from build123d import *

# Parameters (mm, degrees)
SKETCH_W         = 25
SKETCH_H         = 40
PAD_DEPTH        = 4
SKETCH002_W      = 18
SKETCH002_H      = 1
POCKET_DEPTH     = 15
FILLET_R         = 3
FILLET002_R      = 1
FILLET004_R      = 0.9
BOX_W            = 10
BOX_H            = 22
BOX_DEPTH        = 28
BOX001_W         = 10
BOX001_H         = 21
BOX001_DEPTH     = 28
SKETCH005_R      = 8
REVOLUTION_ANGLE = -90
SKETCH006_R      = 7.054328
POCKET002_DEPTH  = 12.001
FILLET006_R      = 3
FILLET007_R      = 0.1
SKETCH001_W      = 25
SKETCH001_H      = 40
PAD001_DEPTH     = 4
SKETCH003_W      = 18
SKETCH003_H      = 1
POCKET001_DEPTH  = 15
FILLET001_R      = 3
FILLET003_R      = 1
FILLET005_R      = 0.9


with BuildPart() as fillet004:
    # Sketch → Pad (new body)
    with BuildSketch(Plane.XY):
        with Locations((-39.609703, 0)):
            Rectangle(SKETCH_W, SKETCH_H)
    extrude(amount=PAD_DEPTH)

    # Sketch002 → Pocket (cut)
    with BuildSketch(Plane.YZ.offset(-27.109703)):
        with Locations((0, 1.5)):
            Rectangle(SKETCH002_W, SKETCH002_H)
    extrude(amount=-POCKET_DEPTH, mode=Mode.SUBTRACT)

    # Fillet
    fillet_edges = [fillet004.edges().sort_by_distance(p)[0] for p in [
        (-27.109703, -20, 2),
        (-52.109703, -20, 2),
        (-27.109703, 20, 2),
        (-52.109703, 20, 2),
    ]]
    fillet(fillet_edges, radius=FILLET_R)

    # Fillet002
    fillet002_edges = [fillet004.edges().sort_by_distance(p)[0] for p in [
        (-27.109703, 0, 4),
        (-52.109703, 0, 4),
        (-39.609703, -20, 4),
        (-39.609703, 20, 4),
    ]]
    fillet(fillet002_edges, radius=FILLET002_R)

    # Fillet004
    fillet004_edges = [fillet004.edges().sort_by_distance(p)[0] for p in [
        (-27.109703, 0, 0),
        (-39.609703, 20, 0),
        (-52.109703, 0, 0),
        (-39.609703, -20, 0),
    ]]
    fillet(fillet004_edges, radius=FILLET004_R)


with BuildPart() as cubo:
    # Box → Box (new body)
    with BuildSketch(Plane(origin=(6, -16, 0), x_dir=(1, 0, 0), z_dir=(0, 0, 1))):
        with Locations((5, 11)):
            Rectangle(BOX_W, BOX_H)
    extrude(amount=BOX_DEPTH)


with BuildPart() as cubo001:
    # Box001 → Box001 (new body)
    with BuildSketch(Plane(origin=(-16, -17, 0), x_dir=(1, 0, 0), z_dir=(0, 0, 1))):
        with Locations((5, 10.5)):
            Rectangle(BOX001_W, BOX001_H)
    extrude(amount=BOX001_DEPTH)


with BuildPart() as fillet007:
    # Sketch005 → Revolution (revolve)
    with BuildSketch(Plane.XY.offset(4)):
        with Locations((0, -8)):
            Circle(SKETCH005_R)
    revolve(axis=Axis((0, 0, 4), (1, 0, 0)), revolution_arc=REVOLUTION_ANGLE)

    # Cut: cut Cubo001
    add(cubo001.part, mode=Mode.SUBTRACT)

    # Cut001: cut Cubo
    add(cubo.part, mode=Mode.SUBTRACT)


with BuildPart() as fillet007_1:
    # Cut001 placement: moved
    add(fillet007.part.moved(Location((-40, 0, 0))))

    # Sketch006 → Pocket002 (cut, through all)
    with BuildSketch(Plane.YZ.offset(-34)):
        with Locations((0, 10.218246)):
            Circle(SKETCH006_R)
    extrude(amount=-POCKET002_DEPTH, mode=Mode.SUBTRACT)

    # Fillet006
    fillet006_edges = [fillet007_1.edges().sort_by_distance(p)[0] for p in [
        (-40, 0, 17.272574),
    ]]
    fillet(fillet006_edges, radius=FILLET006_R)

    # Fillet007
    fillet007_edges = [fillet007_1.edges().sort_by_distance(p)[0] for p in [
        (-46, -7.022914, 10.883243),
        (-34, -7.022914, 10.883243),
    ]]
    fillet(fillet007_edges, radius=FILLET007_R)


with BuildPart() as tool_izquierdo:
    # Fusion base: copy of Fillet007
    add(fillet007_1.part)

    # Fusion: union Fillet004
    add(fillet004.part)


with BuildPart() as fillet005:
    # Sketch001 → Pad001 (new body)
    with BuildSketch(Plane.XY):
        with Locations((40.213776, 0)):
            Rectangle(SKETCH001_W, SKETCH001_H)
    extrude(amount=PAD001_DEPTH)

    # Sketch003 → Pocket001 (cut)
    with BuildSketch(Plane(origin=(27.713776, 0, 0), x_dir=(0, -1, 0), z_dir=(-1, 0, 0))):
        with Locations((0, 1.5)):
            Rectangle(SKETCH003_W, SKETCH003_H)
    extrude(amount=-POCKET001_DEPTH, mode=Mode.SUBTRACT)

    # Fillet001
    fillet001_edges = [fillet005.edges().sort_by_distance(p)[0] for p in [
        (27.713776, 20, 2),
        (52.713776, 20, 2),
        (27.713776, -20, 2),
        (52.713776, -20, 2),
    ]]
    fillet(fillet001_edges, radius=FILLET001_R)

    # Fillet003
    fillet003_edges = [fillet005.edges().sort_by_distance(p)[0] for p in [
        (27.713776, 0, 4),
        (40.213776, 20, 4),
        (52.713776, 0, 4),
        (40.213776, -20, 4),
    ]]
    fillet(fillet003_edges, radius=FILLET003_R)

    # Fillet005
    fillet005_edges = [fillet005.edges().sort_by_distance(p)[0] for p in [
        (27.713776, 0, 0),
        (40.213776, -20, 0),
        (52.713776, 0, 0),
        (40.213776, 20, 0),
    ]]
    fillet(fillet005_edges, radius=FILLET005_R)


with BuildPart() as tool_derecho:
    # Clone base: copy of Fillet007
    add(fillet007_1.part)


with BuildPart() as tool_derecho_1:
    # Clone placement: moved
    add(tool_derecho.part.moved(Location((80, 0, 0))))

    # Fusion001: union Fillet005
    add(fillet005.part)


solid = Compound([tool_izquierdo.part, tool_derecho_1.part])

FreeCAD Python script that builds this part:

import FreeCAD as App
import Part
import Sketcher

V = App.Vector
Q = App.Units.Quantity


def edges_at(feature, points):
    """Names of the edges that pass closest to the given points."""
    edges = feature.Shape.Edges
    near = lambda p: min(range(len(edges)), key=lambda i: edges[i].distToShape(Part.Vertex(*p))[0])
    return sorted({f"Edge{near(p) + 1}" for p in points})

doc = App.newDocument("Part")
body = doc.addObject("PartDesign::Body", "Body")

# Sketch on XY plane
sketch1 = body.newObject("Sketcher::SketchObject", "Sketch")
sketch1.AttachmentSupport = (doc.getObject("XY_Plane"), [""])
sketch1.MapMode = "FlatFace"
sketch1.addGeometry([
    Part.LineSegment(V(-52, 20, 0), V(-52, -20, 0)),
    Part.LineSegment(V(-52, -20, 0), V(-27, -20, 0)),
    Part.LineSegment(V(-27, -20, 0), V(-27, 20, 0)),
    Part.LineSegment(V(-27, 20, 0), V(-52, 20, 0)),
], False)
sketch1.addConstraint([
    Sketcher.Constraint("Coincident", 0, 2, 1, 1),
    Sketcher.Constraint("Coincident", 1, 2, 2, 1),
    Sketcher.Constraint("Coincident", 2, 2, 3, 1),
    Sketcher.Constraint("Coincident", 3, 2, 0, 1),
    Sketcher.Constraint("Vertical", 0),
    Sketcher.Constraint("Horizontal", 1),
    Sketcher.Constraint("Vertical", 2),
    Sketcher.Constraint("Horizontal", 3),
    Sketcher.Constraint("DistanceX", 1, 1, 1, 2, Q("25 mm")),
    Sketcher.Constraint("DistanceY", 0, 2, 0, 1, Q("40 mm")),
    Sketcher.Constraint("DistanceY", 0, 2, -1, 1, Q("20 mm")),
    Sketcher.Constraint("DistanceX", 0, 2, -1, 1, Q("52.109703 mm")),
])
pad1 = body.newObject("PartDesign::Pad", "Pad")
pad1.Profile = sketch1
pad1.Length = 4

# Sketch on YZ plane
sketch2 = body.newObject("Sketcher::SketchObject", "Sketch001")
sketch2.AttachmentSupport = (doc.getObject("YZ_Plane"), [""])
sketch2.MapMode = "FlatFace"
sketch2.AttachmentOffset = App.Placement(V(0, 0, -27.109703), App.Rotation())
sketch2.addGeometry([
    Part.LineSegment(V(-9, 2, 0), V(-9, 1, 0)),
    Part.LineSegment(V(-9, 1, 0), V(9, 1, 0)),
    Part.LineSegment(V(9, 1, 0), V(9, 2, 0)),
    Part.LineSegment(V(9, 2, 0), V(-9, 2, 0)),
], False)
sketch2.addConstraint([
    Sketcher.Constraint("Coincident", 0, 2, 1, 1),
    Sketcher.Constraint("Coincident", 1, 2, 2, 1),
    Sketcher.Constraint("Coincident", 2, 2, 3, 1),
    Sketcher.Constraint("Coincident", 3, 2, 0, 1),
    Sketcher.Constraint("Vertical", 0),
    Sketcher.Constraint("Horizontal", 1),
    Sketcher.Constraint("Vertical", 2),
    Sketcher.Constraint("Horizontal", 3),
    Sketcher.Constraint("DistanceX", 1, 1, 1, 2, Q("18 mm")),
    Sketcher.Constraint("DistanceY", 0, 2, 0, 1, Q("1 mm")),
    Sketcher.Constraint("DistanceX", 0, 2, -1, 1, Q("9 mm")),
    Sketcher.Constraint("DistanceY", -1, 1, 0, 2, Q("1 mm")),
])
pocket1 = body.newObject("PartDesign::Pocket", "Pocket")
pocket1.Profile = sketch2
pocket1.Length = 15
doc.recompute()

fillet = body.newObject("PartDesign::Fillet", "Fillet")
fillet.Base = (pocket1, edges_at(pocket1, [
    (-27.11, -20, 2),
    (-52.11, -20, 2),
    (-27.11, 20, 2),
    (-52.11, 20, 2),
]))
fillet.Radius = 3
doc.recompute()

fillet2 = body.newObject("PartDesign::Fillet", "Fillet001")
fillet2.Base = (fillet, edges_at(fillet, [
    (-27.11, 0, 4),
    (-52.11, 0, 4),
    (-39.61, -20, 4),
    (-39.61, 20, 4),
]))
fillet2.Radius = 1
doc.recompute()

fillet3 = body.newObject("PartDesign::Fillet", "Fillet002")
fillet3.Base = (fillet2, edges_at(fillet2, [
    (-27.11, 0, 0),
    (-39.61, 20, 0),
    (-52.11, 0, 0),
    (-39.61, -20, 0),
]))
fillet3.Radius = 0.9
body2 = doc.addObject("PartDesign::Body", "Body001")

# Sketch on XY plane
sketch3 = body2.newObject("Sketcher::SketchObject", "Sketch002")
sketch3.AttachmentSupport = (doc.getObject("XY_Plane001"), [""])
sketch3.MapMode = "FlatFace"
sketch3.addGeometry([
    Part.LineSegment(V(6, 6, 0), V(6, -16, 0)),
    Part.LineSegment(V(6, -16, 0), V(16, -16, 0)),
    Part.LineSegment(V(16, -16, 0), V(16, 6, 0)),
    Part.LineSegment(V(16, 6, 0), V(6, 6, 0)),
], False)
sketch3.addConstraint([
    Sketcher.Constraint("Coincident", 0, 2, 1, 1),
    Sketcher.Constraint("Coincident", 1, 2, 2, 1),
    Sketcher.Constraint("Coincident", 2, 2, 3, 1),
    Sketcher.Constraint("Coincident", 3, 2, 0, 1),
    Sketcher.Constraint("Vertical", 0),
    Sketcher.Constraint("Horizontal", 1),
    Sketcher.Constraint("Vertical", 2),
    Sketcher.Constraint("Horizontal", 3),
    Sketcher.Constraint("DistanceX", 1, 1, 1, 2, Q("10 mm")),
    Sketcher.Constraint("DistanceY", 0, 2, 0, 1, Q("22 mm")),
    Sketcher.Constraint("DistanceX", -1, 1, 0, 2, Q("6 mm")),
    Sketcher.Constraint("DistanceY", 0, 2, -1, 1, Q("16 mm")),
])
pad2 = body2.newObject("PartDesign::Pad", "Pad001")
pad2.Profile = sketch3
pad2.Length = 28
body3 = doc.addObject("PartDesign::Body", "Body002")

# Sketch on XY plane
sketch4 = body3.newObject("Sketcher::SketchObject", "Sketch003")
sketch4.AttachmentSupport = (doc.getObject("XY_Plane002"), [""])
sketch4.MapMode = "FlatFace"
sketch4.addGeometry([
    Part.LineSegment(V(-16, 4, 0), V(-16, -17, 0)),
    Part.LineSegment(V(-16, -17, 0), V(-6, -17, 0)),
    Part.LineSegment(V(-6, -17, 0), V(-6, 4, 0)),
    Part.LineSegment(V(-6, 4, 0), V(-16, 4, 0)),
], False)
sketch4.addConstraint([
    Sketcher.Constraint("Coincident", 0, 2, 1, 1),
    Sketcher.Constraint("Coincident", 1, 2, 2, 1),
    Sketcher.Constraint("Coincident", 2, 2, 3, 1),
    Sketcher.Constraint("Coincident", 3, 2, 0, 1),
    Sketcher.Constraint("Vertical", 0),
    Sketcher.Constraint("Horizontal", 1),
    Sketcher.Constraint("Vertical", 2),
    Sketcher.Constraint("Horizontal", 3),
    Sketcher.Constraint("DistanceX", 1, 1, 1, 2, Q("10 mm")),
    Sketcher.Constraint("DistanceY", 0, 2, 0, 1, Q("21 mm")),
    Sketcher.Constraint("DistanceX", 0, 2, -1, 1, Q("16 mm")),
    Sketcher.Constraint("DistanceY", 0, 2, -1, 1, Q("17 mm")),
])
pad3 = body3.newObject("PartDesign::Pad", "Pad002")
pad3.Profile = sketch4
pad3.Length = 28
body4 = doc.addObject("PartDesign::Body", "Body003")

# Sketch on XY plane
sketch5 = body4.newObject("Sketcher::SketchObject", "Sketch004")
sketch5.AttachmentSupport = (doc.getObject("XY_Plane003"), [""])
sketch5.MapMode = "FlatFace"
sketch5.AttachmentOffset = App.Placement(V(0, 0, 4), App.Rotation())
sketch5.addGeometry(Part.Circle(V(0, -8, 0), V(0, 0, 1), 8), False)
sketch5.addConstraint([
    Sketcher.Constraint("PointOnObject", 0, 3, -2),
    Sketcher.Constraint("Diameter", 0, Q("16 mm")),
    Sketcher.Constraint("DistanceY", 0, 3, -1, 1, Q("8 mm")),
])
revolution = body4.newObject("PartDesign::Revolution", "Revolution")
revolution.Profile = sketch5
revolution.ReferenceAxis = (sketch5, ["H_Axis"])
revolution.Angle = 90
revolution.Reversed = True
doc.recompute()

boolean = body4.newObject("PartDesign::Boolean", "Boolean")
boolean.Type = "Cut"
boolean.addObjects([body3])
doc.recompute()

boolean2 = body4.newObject("PartDesign::Boolean", "Boolean001")
boolean2.Type = "Cut"
boolean2.addObjects([body2])
body5 = doc.addObject("PartDesign::Body", "Body004")
doc.recompute()

body4.Placement = App.Placement(V(-40, 0, 0), App.Rotation(V(0, 0, 1), 0))
boolean3 = body5.newObject("PartDesign::Boolean", "Boolean002")
boolean3.Type = "Fuse"
boolean3.addObjects([body4])

# Sketch on YZ plane
sketch6 = body5.newObject("Sketcher::SketchObject", "Sketch005")
sketch6.AttachmentSupport = (doc.getObject("YZ_Plane004"), [""])
sketch6.MapMode = "FlatFace"
sketch6.AttachmentOffset = App.Placement(V(0, 0, -34), App.Rotation())
sketch6.addGeometry(Part.Circle(V(0, 10, 0), V(0, 0, 1), 7), False)
sketch6.addConstraint([
    Sketcher.Constraint("PointOnObject", 0, 3, -2),
    Sketcher.Constraint("Diameter", 0, Q("14.108656 mm")),
    Sketcher.Constraint("DistanceY", -1, 1, 0, 3, Q("10.218246 mm")),
])
pocket2 = body5.newObject("PartDesign::Pocket", "Pocket001")
pocket2.Profile = sketch6
pocket2.Type = "ThroughAll"
doc.recompute()

fillet4 = body5.newObject("PartDesign::Fillet", "Fillet003")
fillet4.Base = (pocket2, edges_at(pocket2, [(-40, 0, 17.273)]))
fillet4.Radius = 3
doc.recompute()

fillet5 = body5.newObject("PartDesign::Fillet", "Fillet004")
fillet5.Base = (fillet4, edges_at(fillet4, [(-46, -7.023, 10.883), (-34, -7.023, 10.883)]))
fillet5.Radius = 0.1
body6 = doc.addObject("PartDesign::Body", "Body005")
doc.recompute()

body6.BaseFeature = body5
doc.recompute()

boolean4 = body6.newObject("PartDesign::Boolean", "Boolean003")
boolean4.Type = "Fuse"
boolean4.addObjects([body])
body7 = doc.addObject("PartDesign::Body", "Body006")

# Sketch on XY plane
sketch7 = body7.newObject("Sketcher::SketchObject", "Sketch006")
sketch7.AttachmentSupport = (doc.getObject("XY_Plane006"), [""])
sketch7.MapMode = "FlatFace"
sketch7.addGeometry([
    Part.LineSegment(V(28, 20, 0), V(28, -20, 0)),
    Part.LineSegment(V(28, -20, 0), V(53, -20, 0)),
    Part.LineSegment(V(53, -20, 0), V(53, 20, 0)),
    Part.LineSegment(V(53, 20, 0), V(28, 20, 0)),
], False)
sketch7.addConstraint([
    Sketcher.Constraint("Coincident", 0, 2, 1, 1),
    Sketcher.Constraint("Coincident", 1, 2, 2, 1),
    Sketcher.Constraint("Coincident", 2, 2, 3, 1),
    Sketcher.Constraint("Coincident", 3, 2, 0, 1),
    Sketcher.Constraint("Vertical", 0),
    Sketcher.Constraint("Horizontal", 1),
    Sketcher.Constraint("Vertical", 2),
    Sketcher.Constraint("Horizontal", 3),
    Sketcher.Constraint("DistanceX", 1, 1, 1, 2, Q("25 mm")),
    Sketcher.Constraint("DistanceY", 0, 2, 0, 1, Q("40 mm")),
    Sketcher.Constraint("DistanceY", 0, 2, -1, 1, Q("20 mm")),
    Sketcher.Constraint("DistanceX", -1, 1, 0, 2, Q("27.713776 mm")),
])
pad4 = body7.newObject("PartDesign::Pad", "Pad003")
pad4.Profile = sketch7
pad4.Length = 4

# Sketch on YZ plane
sketch8 = body7.newObject("Sketcher::SketchObject", "Sketch007")
sketch8.AttachmentSupport = (doc.getObject("YZ_Plane006"), [""])
sketch8.MapMode = "FlatFace"
sketch8.AttachmentOffset = App.Placement(V(0, 0, 27.713776), App.Rotation())
sketch8.addGeometry([
    Part.LineSegment(V(9, 2, 0), V(9, 1, 0)),
    Part.LineSegment(V(9, 1, 0), V(-9, 1, 0)),
    Part.LineSegment(V(-9, 1, 0), V(-9, 2, 0)),
    Part.LineSegment(V(-9, 2, 0), V(9, 2, 0)),
], False)
sketch8.addConstraint([
    Sketcher.Constraint("Coincident", 0, 2, 1, 1),
    Sketcher.Constraint("Coincident", 1, 2, 2, 1),
    Sketcher.Constraint("Coincident", 2, 2, 3, 1),
    Sketcher.Constraint("Coincident", 3, 2, 0, 1),
    Sketcher.Constraint("Vertical", 0),
    Sketcher.Constraint("Horizontal", 1),
    Sketcher.Constraint("Vertical", 2),
    Sketcher.Constraint("Horizontal", 3),
    Sketcher.Constraint("DistanceX", 1, 2, 1, 1, Q("18 mm")),
    Sketcher.Constraint("DistanceY", 0, 2, 0, 1, Q("1 mm")),
    Sketcher.Constraint("DistanceX", -1, 1, 0, 2, Q("9 mm")),
    Sketcher.Constraint("DistanceY", -1, 1, 0, 2, Q("1 mm")),
])
pocket3 = body7.newObject("PartDesign::Pocket", "Pocket002")
pocket3.Profile = sketch8
pocket3.Length = 15
pocket3.Reversed = True
doc.recompute()

fillet6 = body7.newObject("PartDesign::Fillet", "Fillet005")
fillet6.Base = (pocket3, edges_at(pocket3, [
    (27.714, 20, 2),
    (52.714, 20, 2),
    (27.714, -20, 2),
    (52.714, -20, 2),
]))
fillet6.Radius = 3
doc.recompute()

fillet7 = body7.newObject("PartDesign::Fillet", "Fillet006")
fillet7.Base = (fillet6, edges_at(fillet6, [
    (27.714, 0, 4),
    (40.214, 20, 4),
    (52.714, 0, 4),
    (40.214, -20, 4),
]))
fillet7.Radius = 1
doc.recompute()

fillet8 = body7.newObject("PartDesign::Fillet", "Fillet007")
fillet8.Base = (fillet7, edges_at(fillet7, [
    (27.714, 0, 0),
    (40.214, -20, 0),
    (52.714, 0, 0),
    (40.214, 20, 0),
]))
fillet8.Radius = 0.9
body8 = doc.addObject("PartDesign::Body", "Body007")
doc.recompute()

body5.Placement = App.Placement(V(80, 0, 0), App.Rotation(V(0, 0, 1), 0))
boolean5 = body8.newObject("PartDesign::Boolean", "Boolean004")
boolean5.Type = "Fuse"
boolean5.addObjects([body5])
doc.recompute()

boolean6 = body8.newObject("PartDesign::Boolean", "Boolean005")
boolean6.Type = "Fuse"
boolean6.addObjects([body7])

doc.recompute()
